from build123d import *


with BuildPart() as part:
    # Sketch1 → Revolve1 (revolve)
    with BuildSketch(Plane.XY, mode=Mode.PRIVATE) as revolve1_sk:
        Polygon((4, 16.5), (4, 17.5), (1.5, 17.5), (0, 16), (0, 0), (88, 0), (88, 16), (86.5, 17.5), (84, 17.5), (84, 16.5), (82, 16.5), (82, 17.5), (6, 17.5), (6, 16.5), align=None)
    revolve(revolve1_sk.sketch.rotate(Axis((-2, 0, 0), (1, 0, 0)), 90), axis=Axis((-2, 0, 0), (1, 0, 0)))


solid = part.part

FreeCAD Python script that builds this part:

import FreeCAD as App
import Part
import Sketcher
from FreeCAD import Vector
Q = App.Units.Quantity

doc = App.newDocument("Part")
body = doc.addObject("PartDesign::Body", "Body")

# Sketch on XY plane
sketch1 = body.newObject("Sketcher::SketchObject", "Sketch")
sketch1.AttachmentSupport = (doc.getObject("XY_Plane"), [""])
sketch1.MapMode = "FlatFace"
sketch1.addGeometry([
    Part.LineSegment(Vector(4, 16.5, 0), Vector(4, 17.5, 0)),  # 0
    Part.LineSegment(Vector(4, 17.5, 0), Vector(1.5, 17.5, 0)),  # 1
    Part.LineSegment(Vector(1.5, 17.5, 0), Vector(0, 16, 0)),  # 2
    Part.LineSegment(Vector(0, 16, 0), Vector(0, 0, 0)),  # 3
    Part.LineSegment(Vector(0, 0, 0), Vector(88, 0, 0)),  # 4
    Part.LineSegment(Vector(88, 0, 0), Vector(88, 16, 0)),  # 5
    Part.LineSegment(Vector(88, 16, 0), Vector(86.5, 17.5, 0)),  # 6
    Part.LineSegment(Vector(86.5, 17.5, 0), Vector(84, 17.5, 0)),  # 7
    Part.LineSegment(Vector(84, 17.5, 0), Vector(84, 16.5, 0)),  # 8
    Part.LineSegment(Vector(84, 16.5, 0), Vector(82, 16.5, 0)),  # 9
    Part.LineSegment(Vector(82, 16.5, 0), Vector(82, 17.5, 0)),  # 10
    Part.LineSegment(Vector(82, 17.5, 0), Vector(6, 17.5, 0)),  # 11
    Part.LineSegment(Vector(6, 17.5, 0), Vector(6, 16.5, 0)),  # 12
    Part.LineSegment(Vector(6, 16.5, 0), Vector(4, 16.5, 0)),  # 13
], False)
sketch1.addConstraint([
    Sketcher.Constraint("Coincident", 0, 2, 1, 1),
    Sketcher.Constraint("Coincident", 1, 2, 2, 1),
    Sketcher.Constraint("Coincident", 2, 2, 3, 1),
    Sketcher.Constraint("Coincident", 3, 2, 4, 1),
    Sketcher.Constraint("Coincident", 4, 2, 5, 1),
    Sketcher.Constraint("Coincident", 5, 2, 6, 1),
    Sketcher.Constraint("Coincident", 6, 2, 7, 1),
    Sketcher.Constraint("Coincident", 7, 2, 8, 1),
    Sketcher.Constraint("Coincident", 8, 2, 9, 1),
    Sketcher.Constraint("Coincident", 9, 2, 10, 1),
    Sketcher.Constraint("Coincident", 10, 2, 11, 1),
    Sketcher.Constraint("Coincident", 11, 2, 12, 1),
    Sketcher.Constraint("Coincident", 12, 2, 13, 1),
    Sketcher.Constraint("Coincident", 13, 2, 0, 1),
    Sketcher.Constraint("Vertical", 0),
    Sketcher.Constraint("Horizontal", 1),
    Sketcher.Constraint("Vertical", 3),
    Sketcher.Constraint("Horizontal", 4),
    Sketcher.Constraint("Vertical", 5),
    Sketcher.Constraint("Horizontal", 7),
    Sketcher.Constraint("Vertical", 8),
    Sketcher.Constraint("Horizontal", 9),
    Sketcher.Constraint("Vertical", 10),
    Sketcher.Constraint("Horizontal", 11),
    Sketcher.Constraint("Vertical", 12),
    Sketcher.Constraint("Horizontal", 13),
    Sketcher.Constraint("Coincident", 3, 2, -1, 1),
    Sketcher.Constraint("Perpendicular", 2, 6),
    Sketcher.Constraint("Horizontal", 2, 2, 5, 2),
    Sketcher.Constraint("Horizontal", 1, 2, 6, 2),
    Sketcher.Constraint("Horizontal", 7, 2, 10, 2),
    Sketcher.Constraint("Horizontal", 9, 2, 12, 2),
    Sketcher.Constraint("Equal", 1, 7),
    Sketcher.Constraint("Equal", 9, 13),
    Sketcher.Constraint("Equal", 2, 6),
    Sketcher.Constraint("DistanceX", 4, 1, 4, 2, Q("88 mm")),
    Sketcher.Constraint("DistanceX", 9, 2, 9, 1, Q("2 mm")),
    Sketcher.Constraint("DistanceX", 11, 2, 11, 1, Q("76 mm")),
    Sketcher.Constraint("DistanceY", 0, 1, 0, 2, Q("1 mm")),
    Sketcher.Constraint("DistanceY", 3, 2, 3, 1, Q("16 mm")),
    Sketcher.Constraint("DistanceX", 1, 2, 1, 1, Q("2.5 mm")),
])
revolution = body.newObject("PartDesign::Revolution", "Revolution")
revolution.Profile = sketch1
revolution.ReferenceAxis = (sketch1, ["H_Axis"])
revolution.Angle = 360

doc.recompute()
